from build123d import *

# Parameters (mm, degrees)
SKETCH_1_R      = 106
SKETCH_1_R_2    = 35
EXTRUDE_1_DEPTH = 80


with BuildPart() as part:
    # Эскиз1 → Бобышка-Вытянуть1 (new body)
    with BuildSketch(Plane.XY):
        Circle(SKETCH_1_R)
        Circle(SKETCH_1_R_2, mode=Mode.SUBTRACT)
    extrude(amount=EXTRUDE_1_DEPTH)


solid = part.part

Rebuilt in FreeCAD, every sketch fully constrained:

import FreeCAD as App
import Part
import Sketcher

V = App.Vector
Q = App.Units.Quantity

doc = App.newDocument("Part")
body = doc.addObject("PartDesign::Body", "Body")

# Sketch on XY plane
sketch1 = body.newObject("Sketcher::SketchObject", "Sketch")
sketch1.AttachmentSupport = (doc.getObject("XY_Plane"), [""])
sketch1.MapMode = "FlatFace"
sketch1.addGeometry([
    Part.Circle(V(0, 0, 0), V(0, 0, 1), 106),
    Part.Circle(V(0, 0, 0), V(0, 0, 1), 35),
], False)
sketch1.addConstraint([
    Sketcher.Constraint("Coincident", 0, 3, -1, 1),
    Sketcher.Constraint("Coincident", 1, 3, -1, 1),
    Sketcher.Constraint("Diameter", 0, Q("212 mm")),
    Sketcher.Constraint("Diameter", 1, Q("70 mm")),
])
pad1 = body.newObject("PartDesign::Pad", "Pad")
pad1.Profile = sketch1
pad1.Length = 80

doc.recompute()
